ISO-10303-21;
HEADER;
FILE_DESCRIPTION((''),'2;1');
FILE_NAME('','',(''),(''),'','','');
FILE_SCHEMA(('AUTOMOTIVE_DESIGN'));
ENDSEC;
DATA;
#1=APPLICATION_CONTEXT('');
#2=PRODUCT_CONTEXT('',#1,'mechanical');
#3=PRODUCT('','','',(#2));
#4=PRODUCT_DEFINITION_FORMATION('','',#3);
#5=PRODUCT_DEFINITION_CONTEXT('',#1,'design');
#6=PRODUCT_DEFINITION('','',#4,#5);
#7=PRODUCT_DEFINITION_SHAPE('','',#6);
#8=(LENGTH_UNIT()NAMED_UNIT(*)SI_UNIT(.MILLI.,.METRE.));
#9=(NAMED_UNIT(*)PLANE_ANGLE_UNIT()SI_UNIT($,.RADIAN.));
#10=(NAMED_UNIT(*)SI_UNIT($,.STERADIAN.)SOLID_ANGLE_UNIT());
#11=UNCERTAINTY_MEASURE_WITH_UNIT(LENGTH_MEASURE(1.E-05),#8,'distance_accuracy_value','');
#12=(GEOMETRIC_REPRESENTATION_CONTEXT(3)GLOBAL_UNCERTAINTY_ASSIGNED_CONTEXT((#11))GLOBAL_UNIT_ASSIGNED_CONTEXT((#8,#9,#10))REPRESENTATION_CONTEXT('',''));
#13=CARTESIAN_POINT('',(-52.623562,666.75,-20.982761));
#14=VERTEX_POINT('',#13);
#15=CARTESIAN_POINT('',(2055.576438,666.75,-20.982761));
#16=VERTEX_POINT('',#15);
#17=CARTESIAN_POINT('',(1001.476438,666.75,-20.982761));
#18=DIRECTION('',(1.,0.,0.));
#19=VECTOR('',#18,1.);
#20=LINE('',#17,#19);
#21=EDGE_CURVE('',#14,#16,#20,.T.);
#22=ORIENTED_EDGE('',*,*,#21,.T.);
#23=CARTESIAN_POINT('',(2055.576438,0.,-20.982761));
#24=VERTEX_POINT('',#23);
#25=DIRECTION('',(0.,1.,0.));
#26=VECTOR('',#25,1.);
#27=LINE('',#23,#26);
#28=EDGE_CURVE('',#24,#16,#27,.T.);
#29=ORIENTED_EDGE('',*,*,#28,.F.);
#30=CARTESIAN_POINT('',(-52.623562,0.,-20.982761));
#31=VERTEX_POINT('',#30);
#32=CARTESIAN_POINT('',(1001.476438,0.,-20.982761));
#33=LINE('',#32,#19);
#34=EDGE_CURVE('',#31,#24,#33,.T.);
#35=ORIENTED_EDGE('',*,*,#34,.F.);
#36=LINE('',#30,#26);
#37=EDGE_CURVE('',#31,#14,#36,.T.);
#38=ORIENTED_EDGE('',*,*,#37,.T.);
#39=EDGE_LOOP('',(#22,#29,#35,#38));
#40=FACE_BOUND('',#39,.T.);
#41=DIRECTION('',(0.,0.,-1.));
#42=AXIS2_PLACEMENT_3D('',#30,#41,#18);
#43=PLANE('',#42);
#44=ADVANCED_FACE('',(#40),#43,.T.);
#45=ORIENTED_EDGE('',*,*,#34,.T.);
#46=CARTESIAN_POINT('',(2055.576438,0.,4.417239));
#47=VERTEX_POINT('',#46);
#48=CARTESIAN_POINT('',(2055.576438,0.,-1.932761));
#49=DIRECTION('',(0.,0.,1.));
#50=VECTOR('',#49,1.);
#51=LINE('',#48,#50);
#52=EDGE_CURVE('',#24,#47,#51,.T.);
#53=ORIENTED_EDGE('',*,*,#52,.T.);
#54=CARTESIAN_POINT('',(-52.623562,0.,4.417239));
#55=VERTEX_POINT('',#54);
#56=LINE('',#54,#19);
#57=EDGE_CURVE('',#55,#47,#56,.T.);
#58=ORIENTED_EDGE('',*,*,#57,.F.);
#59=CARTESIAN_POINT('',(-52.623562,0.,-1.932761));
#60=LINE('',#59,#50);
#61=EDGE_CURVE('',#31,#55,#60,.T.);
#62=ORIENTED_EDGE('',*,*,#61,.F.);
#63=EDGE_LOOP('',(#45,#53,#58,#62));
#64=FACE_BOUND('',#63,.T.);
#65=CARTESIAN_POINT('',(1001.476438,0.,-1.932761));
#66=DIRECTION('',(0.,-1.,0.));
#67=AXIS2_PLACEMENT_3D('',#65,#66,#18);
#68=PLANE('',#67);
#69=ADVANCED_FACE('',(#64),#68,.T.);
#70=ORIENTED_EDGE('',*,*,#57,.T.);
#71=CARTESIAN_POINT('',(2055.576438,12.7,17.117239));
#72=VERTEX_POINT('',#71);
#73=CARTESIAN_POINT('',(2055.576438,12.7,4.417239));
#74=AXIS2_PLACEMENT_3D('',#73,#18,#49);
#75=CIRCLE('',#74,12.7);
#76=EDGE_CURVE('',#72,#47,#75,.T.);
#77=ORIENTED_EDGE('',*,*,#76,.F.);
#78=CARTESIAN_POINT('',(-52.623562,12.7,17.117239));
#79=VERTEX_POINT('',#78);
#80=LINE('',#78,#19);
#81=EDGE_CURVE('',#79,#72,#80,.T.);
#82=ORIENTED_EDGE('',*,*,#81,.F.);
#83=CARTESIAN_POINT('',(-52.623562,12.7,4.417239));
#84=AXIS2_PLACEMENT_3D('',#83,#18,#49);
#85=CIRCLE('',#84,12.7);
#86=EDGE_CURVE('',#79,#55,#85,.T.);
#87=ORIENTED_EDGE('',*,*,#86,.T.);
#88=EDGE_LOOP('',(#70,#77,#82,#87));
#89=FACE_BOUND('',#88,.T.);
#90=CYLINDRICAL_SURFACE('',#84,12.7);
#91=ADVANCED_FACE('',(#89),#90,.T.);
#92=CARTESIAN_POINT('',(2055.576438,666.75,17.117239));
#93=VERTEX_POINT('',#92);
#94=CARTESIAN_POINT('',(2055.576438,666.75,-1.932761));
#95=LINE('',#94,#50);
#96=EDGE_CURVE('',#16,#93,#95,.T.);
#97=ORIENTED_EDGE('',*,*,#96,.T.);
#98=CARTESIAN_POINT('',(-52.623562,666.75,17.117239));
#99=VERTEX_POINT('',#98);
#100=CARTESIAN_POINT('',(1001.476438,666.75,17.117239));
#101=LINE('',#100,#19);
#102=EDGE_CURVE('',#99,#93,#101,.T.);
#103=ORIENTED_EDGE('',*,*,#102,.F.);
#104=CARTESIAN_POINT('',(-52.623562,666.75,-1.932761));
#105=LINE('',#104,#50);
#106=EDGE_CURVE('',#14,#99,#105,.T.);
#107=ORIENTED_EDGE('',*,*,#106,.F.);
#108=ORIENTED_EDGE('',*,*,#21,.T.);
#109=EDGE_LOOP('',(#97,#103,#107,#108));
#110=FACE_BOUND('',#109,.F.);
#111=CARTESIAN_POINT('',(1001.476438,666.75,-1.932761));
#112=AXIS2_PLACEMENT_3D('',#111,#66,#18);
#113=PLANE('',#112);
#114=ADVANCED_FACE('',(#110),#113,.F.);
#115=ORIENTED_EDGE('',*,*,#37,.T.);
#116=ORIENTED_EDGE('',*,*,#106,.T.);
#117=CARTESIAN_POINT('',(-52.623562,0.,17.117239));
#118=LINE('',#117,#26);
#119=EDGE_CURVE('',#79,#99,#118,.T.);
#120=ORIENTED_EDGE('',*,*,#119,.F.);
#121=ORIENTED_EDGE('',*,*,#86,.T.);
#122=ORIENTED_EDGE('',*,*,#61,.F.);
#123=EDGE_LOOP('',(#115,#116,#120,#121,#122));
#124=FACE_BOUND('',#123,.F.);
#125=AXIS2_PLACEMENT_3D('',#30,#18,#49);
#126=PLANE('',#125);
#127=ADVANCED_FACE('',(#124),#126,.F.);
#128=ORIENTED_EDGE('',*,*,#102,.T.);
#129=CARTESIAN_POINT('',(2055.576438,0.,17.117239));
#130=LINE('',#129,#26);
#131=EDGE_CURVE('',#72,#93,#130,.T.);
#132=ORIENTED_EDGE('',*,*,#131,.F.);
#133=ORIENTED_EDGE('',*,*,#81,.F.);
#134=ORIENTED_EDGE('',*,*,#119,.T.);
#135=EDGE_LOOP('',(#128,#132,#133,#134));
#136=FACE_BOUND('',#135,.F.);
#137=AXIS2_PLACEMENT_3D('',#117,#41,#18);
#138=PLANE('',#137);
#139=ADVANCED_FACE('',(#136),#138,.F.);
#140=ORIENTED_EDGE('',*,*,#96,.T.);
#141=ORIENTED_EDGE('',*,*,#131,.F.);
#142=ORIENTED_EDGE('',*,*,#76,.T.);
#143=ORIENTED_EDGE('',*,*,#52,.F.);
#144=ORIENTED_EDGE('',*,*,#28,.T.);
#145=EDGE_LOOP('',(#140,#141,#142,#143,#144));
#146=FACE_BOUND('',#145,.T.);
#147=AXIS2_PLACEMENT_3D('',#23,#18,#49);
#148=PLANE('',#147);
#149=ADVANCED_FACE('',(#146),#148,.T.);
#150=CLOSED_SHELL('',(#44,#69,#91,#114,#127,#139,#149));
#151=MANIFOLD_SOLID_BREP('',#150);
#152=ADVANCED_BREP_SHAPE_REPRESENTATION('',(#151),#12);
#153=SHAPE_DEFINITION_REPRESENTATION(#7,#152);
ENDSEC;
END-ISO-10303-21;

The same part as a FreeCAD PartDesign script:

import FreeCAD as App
import Part
import Sketcher

V = App.Vector
Q = App.Units.Quantity


def edges_at(feature, points):
    """Names of the edges that pass closest to the given points."""
    edges = feature.Shape.Edges
    near = lambda p: min(range(len(edges)), key=lambda i: edges[i].distToShape(Part.Vertex(*p))[0])
    return sorted({f"Edge{near(p) + 1}" for p in points})


def add_polygon(sketch, points):
    """Adds a closed chain of lines whose ends are joined by coincident constraints."""
    first, n = sketch.GeometryCount, len(points)
    for a, b in zip(points, points[1:] + points[:1]):
        sketch.addGeometry(Part.LineSegment(App.Vector(*a, 0), App.Vector(*b, 0)), False)
    for i in range(n):
        sketch.addConstraint(Sketcher.Constraint("Coincident", first + i, 2, first + (i + 1) % n, 1))

doc = App.newDocument("Part")
body = doc.addObject("PartDesign::Body", "Body")

# Sketch on XZ plane
sketch1 = doc.addObject("Sketcher::SketchObject", "Sketch")
body.addObject(sketch1)
sketch1.AttachmentSupport = (doc.XZ_Plane, [""])
sketch1.MapMode = "FlatFace"
add_polygon(sketch1, [(-53, 17), (-53, -21), (2056, -21), (2056, 17)])  # lines 0-3
sketch1.addConstraint(Sketcher.Constraint("Vertical", 0))
sketch1.addConstraint(Sketcher.Constraint("Horizontal", 1))
sketch1.addConstraint(Sketcher.Constraint("Vertical", 2))
sketch1.addConstraint(Sketcher.Constraint("Horizontal", 3))
sketch1.addConstraint(Sketcher.Constraint("DistanceX", 1, 1, 1, 2, Q("83 in")))
sketch1.addConstraint(Sketcher.Constraint("DistanceY", 0, 2, 0, 1, Q("1.5 in")))
sketch1.addConstraint(Sketcher.Constraint("DistanceY", 0, 2, -1, 1, 20.982761))
sketch1.addConstraint(Sketcher.Constraint("DistanceX", -1, 1, 1, 2, 2055.576438))
pad1 = doc.addObject("PartDesign::Pad", "Pad")
body.addObject(pad1)
pad1.Profile = sketch1
pad1.Length = Q("26.25 in")
pad1.Reversed = True
doc.recompute()

fillet = doc.addObject("PartDesign::Fillet", "Fillet")
body.addObject(fillet)
fillet.Base = (pad1, edges_at(pad1, [(1001.476, 0, 17.117)]))
fillet.Radius = Q("0.5 in")

doc.recompute()
